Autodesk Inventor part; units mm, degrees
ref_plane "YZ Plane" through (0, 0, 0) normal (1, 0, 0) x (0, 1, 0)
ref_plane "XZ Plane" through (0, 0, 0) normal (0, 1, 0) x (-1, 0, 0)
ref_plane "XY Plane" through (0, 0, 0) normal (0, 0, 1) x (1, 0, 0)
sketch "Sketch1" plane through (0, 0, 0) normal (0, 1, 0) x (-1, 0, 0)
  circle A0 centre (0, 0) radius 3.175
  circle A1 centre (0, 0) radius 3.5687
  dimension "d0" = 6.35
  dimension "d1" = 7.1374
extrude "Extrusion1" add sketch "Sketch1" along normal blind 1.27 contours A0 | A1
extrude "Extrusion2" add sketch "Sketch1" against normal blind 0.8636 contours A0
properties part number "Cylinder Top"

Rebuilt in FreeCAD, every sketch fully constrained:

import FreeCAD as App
import Part
import Sketcher
Q = App.Units.Quantity

doc = App.newDocument("Part")
body = doc.addObject("PartDesign::Body", "Body")

# Sketch on XZ plane
sketch1 = body.newObject("Sketcher::SketchObject", "Sketch")
sketch1.AttachmentSupport = (doc.getObject("XZ_Plane"), [""])
sketch1.MapMode = "FlatFace"
sketch1.addGeometry(Part.Circle(App.Vector(0, 0, 0), App.Vector(0, 0, 1), 3.5687), False)
sketch1.addConstraint(Sketcher.Constraint("Coincident", 0, 3, -1, 1))
sketch1.addConstraint(Sketcher.Constraint("Diameter", 0, Q("0.281 in")))
pad1 = body.newObject("PartDesign::Pad", "Pad")
pad1.Profile = sketch1
pad1.Length = Q("0.05 in")
pad1.Reversed = True

# Sketch on XZ plane
sketch2 = body.newObject("Sketcher::SketchObject", "Sketch001")
sketch2.AttachmentSupport = (doc.getObject("XZ_Plane"), [""])
sketch2.MapMode = "FlatFace"
sketch2.addGeometry(Part.Circle(App.Vector(0, 0, 0), App.Vector(0, 0, 1), 3.175), False)
sketch2.addConstraint(Sketcher.Constraint("Coincident", 0, 3, -1, 1))
sketch2.addConstraint(Sketcher.Constraint("Diameter", 0, Q("0.25 in")))
pad2 = body.newObject("PartDesign::Pad", "Pad001")
pad2.Profile = sketch2
pad2.Length = Q("0.034 in")

doc.recompute()
